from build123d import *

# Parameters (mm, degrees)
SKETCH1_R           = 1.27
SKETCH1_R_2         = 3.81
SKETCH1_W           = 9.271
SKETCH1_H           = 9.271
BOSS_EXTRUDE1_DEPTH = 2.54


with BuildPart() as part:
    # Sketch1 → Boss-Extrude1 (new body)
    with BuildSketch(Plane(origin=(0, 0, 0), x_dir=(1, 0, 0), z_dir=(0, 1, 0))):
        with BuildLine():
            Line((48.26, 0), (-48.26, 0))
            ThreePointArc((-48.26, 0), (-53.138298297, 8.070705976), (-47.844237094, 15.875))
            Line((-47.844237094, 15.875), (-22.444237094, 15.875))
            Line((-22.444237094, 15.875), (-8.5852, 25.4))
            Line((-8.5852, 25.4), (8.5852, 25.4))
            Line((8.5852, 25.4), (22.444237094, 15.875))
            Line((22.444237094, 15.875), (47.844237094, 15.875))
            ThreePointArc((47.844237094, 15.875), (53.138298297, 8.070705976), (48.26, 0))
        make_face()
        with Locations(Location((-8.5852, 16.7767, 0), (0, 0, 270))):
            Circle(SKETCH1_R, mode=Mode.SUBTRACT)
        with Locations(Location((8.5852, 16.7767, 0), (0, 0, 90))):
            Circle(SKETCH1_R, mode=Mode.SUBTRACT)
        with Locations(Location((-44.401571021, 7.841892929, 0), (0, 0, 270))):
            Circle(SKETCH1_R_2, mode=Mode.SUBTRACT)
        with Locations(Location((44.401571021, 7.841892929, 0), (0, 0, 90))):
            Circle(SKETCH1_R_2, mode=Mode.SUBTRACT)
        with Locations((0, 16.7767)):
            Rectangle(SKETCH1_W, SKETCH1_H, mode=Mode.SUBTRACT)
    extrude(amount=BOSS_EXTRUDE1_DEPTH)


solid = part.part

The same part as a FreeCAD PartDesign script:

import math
import FreeCAD as App
import Part
import Sketcher
from FreeCAD import Vector
Q = App.Units.Quantity


def add_polygon(sketch, points):
    """Adds a closed chain of lines whose ends are joined by coincident constraints."""
    first, n = sketch.GeometryCount, len(points)
    for a, b in zip(points, points[1:] + points[:1]):
        sketch.addGeometry(Part.LineSegment(App.Vector(*a, 0), App.Vector(*b, 0)), False)
    for i in range(n):
        sketch.addConstraint(Sketcher.Constraint("Coincident", first + i, 2, first + (i + 1) % n, 1))

doc = App.newDocument("Part")
body = doc.addObject("PartDesign::Body", "Body")

# Sketch on XZ plane
sketch1 = body.newObject("Sketcher::SketchObject", "Sketch")
sketch1.AttachmentSupport = (doc.getObject("XZ_Plane"), [""])
sketch1.MapMode = "FlatFace"
sketch1.addGeometry(Part.LineSegment(Vector(-48.3, 0, 0), Vector(48.3, 0, 0)), False)  # 0
sketch1.addGeometry(Part.ArcOfCircle(Part.Circle(Vector(44.4, -7.8, 0), Vector(0, 0, 1), 8.7), math.radians(-67), math.radians(64)), False)  # 1
sketch1.addGeometry(Part.LineSegment(Vector(47.8, -15.9, 0), Vector(22.4, -15.9, 0)), False)  # 2
sketch1.addGeometry(Part.LineSegment(Vector(22.4, -15.9, 0), Vector(8.6, -25.4, 0)), False)  # 3
sketch1.addGeometry(Part.LineSegment(Vector(8.6, -25.4, 0), Vector(-8.6, -25.4, 0)), False)  # 4
sketch1.addGeometry(Part.LineSegment(Vector(-8.6, -25.4, 0), Vector(-22.4, -15.9, 0)), False)  # 5
sketch1.addGeometry(Part.LineSegment(Vector(-22.4, -15.9, 0), Vector(-47.8, -15.9, 0)), False)  # 6
sketch1.addGeometry(Part.ArcOfCircle(Part.Circle(Vector(-44.4, -7.8, 0), Vector(0, 0, 1), 8.7), math.radians(116), math.radians(247)), False)  # 7
sketch1.addGeometry(Part.Circle(Vector(44.4, -7.8, 0), Vector(0, 0, 1), 3.8), False)  # 8
sketch1.addGeometry(Part.Circle(Vector(-44.4, -7.8, 0), Vector(0, 0, 1), 3.8), False)  # 9
sketch1.addGeometry(Part.Circle(Vector(8.6, -16.8, 0), Vector(0, 0, 1), 1.3), False)  # 10
add_polygon(sketch1, [(-4.6, -12.1), (-4.6, -21.4), (4.6, -21.4), (4.6, -12.1)])  # lines 11-14
sketch1.addGeometry(Part.Circle(Vector(-8.6, -16.8, 0), Vector(0, 0, 1), 1.3), False)  # 15
sketch1.addConstraint(Sketcher.Constraint("Coincident", 0, 2, 1, 2))
sketch1.addConstraint(Sketcher.Constraint("Coincident", 1, 1, 2, 1))
sketch1.addConstraint(Sketcher.Constraint("Coincident", 2, 2, 3, 1))
sketch1.addConstraint(Sketcher.Constraint("Coincident", 3, 2, 4, 1))
sketch1.addConstraint(Sketcher.Constraint("Coincident", 4, 2, 5, 1))
sketch1.addConstraint(Sketcher.Constraint("Coincident", 5, 2, 6, 1))
sketch1.addConstraint(Sketcher.Constraint("Coincident", 6, 2, 7, 2))
sketch1.addConstraint(Sketcher.Constraint("Coincident", 7, 1, 0, 1))
sketch1.addConstraint(Sketcher.Constraint("Horizontal", 0))
sketch1.addConstraint(Sketcher.Constraint("Horizontal", 2))
sketch1.addConstraint(Sketcher.Constraint("Horizontal", 4))
sketch1.addConstraint(Sketcher.Constraint("Horizontal", 6))
sketch1.addConstraint(Sketcher.Constraint("Vertical", 11))
sketch1.addConstraint(Sketcher.Constraint("Horizontal", 12))
sketch1.addConstraint(Sketcher.Constraint("Vertical", 13))
sketch1.addConstraint(Sketcher.Constraint("Horizontal", 14))
sketch1.addConstraint(Sketcher.Constraint("Coincident", 8, 3, 1, 3))
sketch1.addConstraint(Sketcher.Constraint("Coincident", 9, 3, 7, 3))
sketch1.addConstraint(Sketcher.Constraint("Equal", 1, 7))
sketch1.addConstraint(Sketcher.Constraint("Equal", 8, 9))
sketch1.addConstraint(Sketcher.Constraint("Equal", 10, 15))
sketch1.addConstraint(Sketcher.Constraint("Symmetric", 0, 2, 7, 1, -1, 1))
sketch1.addConstraint(Sketcher.Constraint("Symmetric", 10, 3, 15, 3, -2))
sketch1.addConstraint(Sketcher.Constraint("Symmetric", 2, 2, 5, 2, -2))
sketch1.addConstraint(Sketcher.Constraint("Horizontal", 1, 3, 7, 3))
sketch1.addConstraint(Sketcher.Constraint("Vertical", 10, 3, 3, 2))
sketch1.addConstraint(Sketcher.Constraint("Vertical", 15, 3, 4, 2))
sketch1.addConstraint(Sketcher.Constraint("Equal", 14, 11))
sketch1.addConstraint(Sketcher.Constraint("Diameter", 8, Q("0.3 in")))
sketch1.addConstraint(Sketcher.Constraint("Diameter", 10, Q("0.1 in")))
sketch1.addConstraint(Sketcher.Constraint("DistanceX", 2, 2, 2, 1, Q("1 in")))
sketch1.addConstraint(Sketcher.Constraint("DistanceX", 0, 1, 0, 2, Q("3.8 in")))
sketch1.addConstraint(Sketcher.Constraint("DistanceY", 3, 2, -1, 1, Q("1 in")))
sketch1.addConstraint(Sketcher.Constraint("DistanceX", 4, 2, 4, 1, Q("0.676 in")))
sketch1.addConstraint(Sketcher.Constraint("DistanceX", 12, 1, 12, 2, Q("0.365 in")))
sketch1.addConstraint(Sketcher.Constraint("DistanceY", 1, 1, -1, 1, Q("0.625 in")))
sketch1.addConstraint(Sketcher.Constraint("DistanceY", 11, 2, -1, 1, Q("0.843 in")))
sketch1.addConstraint(Sketcher.Constraint("DistanceY", 10, 3, -1, 1, Q("0.6605 in")))
sketch1.addConstraint(Sketcher.Constraint("DistanceX", 11, 2, -1, 1, Q("0.1825 in")))
sketch1.addConstraint(Sketcher.Constraint("Radius", 1, Q("8.739723 mm")))
sketch1.addConstraint(Sketcher.Constraint("DistanceX", -1, 1, 1, 3, Q("44.401571 mm")))
pad1 = body.newObject("PartDesign::Pad", "Pad")
pad1.Profile = sketch1
pad1.Length = Q("0.1 in")
pad1.Reversed = True

doc.recompute()
